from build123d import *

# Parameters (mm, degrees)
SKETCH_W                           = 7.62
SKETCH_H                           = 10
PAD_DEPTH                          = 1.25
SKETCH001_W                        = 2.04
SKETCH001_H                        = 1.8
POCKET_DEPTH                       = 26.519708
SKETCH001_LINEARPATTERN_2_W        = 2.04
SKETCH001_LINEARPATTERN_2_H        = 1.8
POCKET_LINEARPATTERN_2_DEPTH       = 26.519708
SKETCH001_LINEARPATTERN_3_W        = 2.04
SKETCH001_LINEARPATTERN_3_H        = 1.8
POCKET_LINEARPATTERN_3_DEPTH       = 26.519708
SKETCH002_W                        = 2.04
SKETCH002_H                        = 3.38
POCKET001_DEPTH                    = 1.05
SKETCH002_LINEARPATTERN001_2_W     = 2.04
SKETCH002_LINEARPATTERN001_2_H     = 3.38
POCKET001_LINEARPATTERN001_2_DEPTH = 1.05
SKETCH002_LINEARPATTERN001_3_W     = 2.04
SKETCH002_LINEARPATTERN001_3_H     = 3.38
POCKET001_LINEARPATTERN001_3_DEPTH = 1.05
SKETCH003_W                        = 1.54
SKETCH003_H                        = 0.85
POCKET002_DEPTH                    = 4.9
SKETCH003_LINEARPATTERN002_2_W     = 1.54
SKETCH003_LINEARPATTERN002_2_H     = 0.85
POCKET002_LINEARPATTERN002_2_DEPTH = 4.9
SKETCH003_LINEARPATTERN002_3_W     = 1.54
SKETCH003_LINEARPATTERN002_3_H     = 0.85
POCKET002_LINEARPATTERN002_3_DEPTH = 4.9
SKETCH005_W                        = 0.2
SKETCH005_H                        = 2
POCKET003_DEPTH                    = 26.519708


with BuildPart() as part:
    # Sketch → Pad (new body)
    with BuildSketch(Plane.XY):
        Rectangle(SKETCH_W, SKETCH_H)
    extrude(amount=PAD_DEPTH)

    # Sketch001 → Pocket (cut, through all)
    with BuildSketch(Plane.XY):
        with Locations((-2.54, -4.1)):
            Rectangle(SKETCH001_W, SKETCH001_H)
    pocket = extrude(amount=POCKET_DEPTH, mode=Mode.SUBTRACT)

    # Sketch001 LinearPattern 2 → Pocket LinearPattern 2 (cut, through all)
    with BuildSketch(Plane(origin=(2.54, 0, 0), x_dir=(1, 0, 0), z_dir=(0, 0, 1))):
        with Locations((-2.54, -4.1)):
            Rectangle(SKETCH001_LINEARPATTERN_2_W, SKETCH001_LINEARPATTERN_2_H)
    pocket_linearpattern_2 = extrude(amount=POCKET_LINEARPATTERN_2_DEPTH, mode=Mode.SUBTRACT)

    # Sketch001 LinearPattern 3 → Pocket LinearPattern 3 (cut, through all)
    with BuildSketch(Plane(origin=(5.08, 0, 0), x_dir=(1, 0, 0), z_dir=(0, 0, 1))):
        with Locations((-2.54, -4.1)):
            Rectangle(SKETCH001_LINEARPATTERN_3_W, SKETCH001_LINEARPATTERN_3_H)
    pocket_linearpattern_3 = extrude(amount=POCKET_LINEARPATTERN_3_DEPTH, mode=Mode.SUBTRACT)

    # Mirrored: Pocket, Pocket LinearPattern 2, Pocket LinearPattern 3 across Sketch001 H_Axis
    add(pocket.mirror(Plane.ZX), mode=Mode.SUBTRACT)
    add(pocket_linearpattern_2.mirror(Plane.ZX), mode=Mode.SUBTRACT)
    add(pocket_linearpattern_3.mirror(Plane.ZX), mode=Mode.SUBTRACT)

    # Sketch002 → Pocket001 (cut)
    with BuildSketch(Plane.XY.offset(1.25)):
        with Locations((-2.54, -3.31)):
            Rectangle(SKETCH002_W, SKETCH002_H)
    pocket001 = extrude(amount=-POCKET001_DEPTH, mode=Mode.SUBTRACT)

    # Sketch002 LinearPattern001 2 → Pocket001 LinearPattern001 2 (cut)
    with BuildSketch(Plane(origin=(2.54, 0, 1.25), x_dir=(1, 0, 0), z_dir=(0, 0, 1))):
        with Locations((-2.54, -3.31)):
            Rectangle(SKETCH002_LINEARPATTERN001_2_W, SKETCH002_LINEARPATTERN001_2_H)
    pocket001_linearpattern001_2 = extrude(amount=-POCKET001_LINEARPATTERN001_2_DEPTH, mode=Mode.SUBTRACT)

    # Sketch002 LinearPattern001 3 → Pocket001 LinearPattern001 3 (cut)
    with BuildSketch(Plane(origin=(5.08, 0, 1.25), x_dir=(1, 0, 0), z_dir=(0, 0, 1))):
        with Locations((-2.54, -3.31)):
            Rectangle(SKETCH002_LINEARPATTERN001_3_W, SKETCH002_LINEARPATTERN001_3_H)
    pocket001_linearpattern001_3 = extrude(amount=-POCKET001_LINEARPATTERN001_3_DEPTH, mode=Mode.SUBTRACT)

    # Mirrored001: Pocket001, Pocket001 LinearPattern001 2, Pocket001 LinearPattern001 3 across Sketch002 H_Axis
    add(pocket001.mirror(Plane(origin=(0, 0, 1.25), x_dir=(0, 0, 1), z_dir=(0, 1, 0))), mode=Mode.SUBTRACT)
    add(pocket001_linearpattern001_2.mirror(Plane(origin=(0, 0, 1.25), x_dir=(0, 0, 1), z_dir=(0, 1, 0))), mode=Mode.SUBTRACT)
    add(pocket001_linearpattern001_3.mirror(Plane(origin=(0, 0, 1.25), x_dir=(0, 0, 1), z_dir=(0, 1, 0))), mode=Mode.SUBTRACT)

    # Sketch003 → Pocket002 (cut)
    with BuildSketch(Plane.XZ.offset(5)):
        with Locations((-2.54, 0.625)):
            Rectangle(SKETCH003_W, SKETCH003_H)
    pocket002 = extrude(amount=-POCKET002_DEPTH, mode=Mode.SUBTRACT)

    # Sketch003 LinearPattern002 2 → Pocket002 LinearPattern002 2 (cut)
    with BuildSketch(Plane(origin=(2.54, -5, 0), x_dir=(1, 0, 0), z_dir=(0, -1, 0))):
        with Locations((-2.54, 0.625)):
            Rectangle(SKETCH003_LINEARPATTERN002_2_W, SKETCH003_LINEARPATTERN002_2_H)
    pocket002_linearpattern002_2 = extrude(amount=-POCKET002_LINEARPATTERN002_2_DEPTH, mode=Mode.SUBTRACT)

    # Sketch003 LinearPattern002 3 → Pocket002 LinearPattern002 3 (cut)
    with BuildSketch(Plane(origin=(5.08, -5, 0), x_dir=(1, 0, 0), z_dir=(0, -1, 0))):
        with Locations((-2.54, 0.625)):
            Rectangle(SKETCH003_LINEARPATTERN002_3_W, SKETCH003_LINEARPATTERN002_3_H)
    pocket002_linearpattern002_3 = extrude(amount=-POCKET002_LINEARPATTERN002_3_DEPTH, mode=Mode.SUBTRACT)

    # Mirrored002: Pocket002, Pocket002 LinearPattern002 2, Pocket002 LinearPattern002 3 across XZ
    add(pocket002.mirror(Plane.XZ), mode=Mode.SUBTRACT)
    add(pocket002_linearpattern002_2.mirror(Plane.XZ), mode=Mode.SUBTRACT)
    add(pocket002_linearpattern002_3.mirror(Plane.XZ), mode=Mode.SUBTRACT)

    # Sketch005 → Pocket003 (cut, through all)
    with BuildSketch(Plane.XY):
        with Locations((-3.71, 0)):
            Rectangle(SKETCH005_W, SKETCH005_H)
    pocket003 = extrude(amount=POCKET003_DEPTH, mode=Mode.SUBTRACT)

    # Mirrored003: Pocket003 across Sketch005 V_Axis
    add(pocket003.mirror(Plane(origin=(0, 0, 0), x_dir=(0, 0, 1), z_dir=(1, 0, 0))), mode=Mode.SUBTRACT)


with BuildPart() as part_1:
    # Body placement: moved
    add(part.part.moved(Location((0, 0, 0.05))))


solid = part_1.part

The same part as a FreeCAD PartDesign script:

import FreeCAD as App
import Part
import Sketcher

V = App.Vector
Q = App.Units.Quantity


def add_polygon(sketch, points):
    """Adds a closed chain of lines whose ends are joined by coincident constraints."""
    first, n = sketch.GeometryCount, len(points)
    for a, b in zip(points, points[1:] + points[:1]):
        sketch.addGeometry(Part.LineSegment(App.Vector(*a, 0), App.Vector(*b, 0)), False)
    for i in range(n):
        sketch.addConstraint(Sketcher.Constraint("Coincident", first + i, 2, first + (i + 1) % n, 1))

doc = App.newDocument("Part")
body = doc.addObject("PartDesign::Body", "Body")

sketch1 = body.newObject("Sketcher::SketchObject", "Sketch")
sketch1.AttachmentSupport = (doc.getObject("XY_Plane"), [""])
sketch1.MapMode = "FlatFace"
add_polygon(sketch1, [(-3.81, 5), (-3.81, -5), (3.81, -5), (3.81, 5)])
sketch1.addConstraint([
    Sketcher.Constraint("Vertical", 0),
    Sketcher.Constraint("Horizontal", 1),
    Sketcher.Constraint("Vertical", 2),
    Sketcher.Constraint("Horizontal", 3),
    Sketcher.Constraint("Symmetric", 0, 2, 2, 2, -1, 1),
    Sketcher.Constraint("DistanceY", 0, 2, 0, 1, Q("10 mm")),
    Sketcher.Constraint("DistanceX", 1, 1, 1, 2, Q("7.62 mm")),
])
pad1 = body.newObject("PartDesign::Pad", "Pad")
pad1.Profile = sketch1
pad1.Length = 1.25

sketch2 = body.newObject("Sketcher::SketchObject", "Sketch001")
sketch2.AttachmentSupport = (doc.getObject("XY_Plane"), [""])
sketch2.MapMode = "FlatFace"
add_polygon(sketch2, [(-3.56, -3.2), (-3.56, -5), (-1.52, -5), (-1.52, -3.2)])
sketch2.addConstraint([
    Sketcher.Constraint("Vertical", 0),
    Sketcher.Constraint("Horizontal", 1),
    Sketcher.Constraint("Vertical", 2),
    Sketcher.Constraint("Horizontal", 3),
    Sketcher.Constraint("DistanceY", 0, 2, 0, 1, Q("1.8 mm")),
    Sketcher.Constraint("DistanceY", 0, 2, -1, 1, Q("5 mm")),
    Sketcher.Constraint("DistanceX", 1, 1, 1, 2, Q("2.04 mm")),
    Sketcher.Constraint("DistanceX", 0, 2, -1, 1, Q("3.56 mm")),
])
pocket1 = body.newObject("PartDesign::Pocket", "Pocket")
pocket1.Profile = sketch2
pocket1.Type = "ThroughAll"
pocket1.Reversed = True

sketch3 = body.newObject("Sketcher::SketchObject", "Sketch002")
sketch3.AttachmentSupport = (doc.getObject("XY_Plane"), [""])
sketch3.MapMode = "FlatFace"
add_polygon(sketch3, [(-1.02, -3.2), (-1.02, -5), (1.02, -5), (1.02, -3.2)])
sketch3.addConstraint([
    Sketcher.Constraint("Vertical", 0),
    Sketcher.Constraint("Horizontal", 1),
    Sketcher.Constraint("Vertical", 2),
    Sketcher.Constraint("Horizontal", 3),
    Sketcher.Constraint("DistanceY", 0, 2, 0, 1, Q("1.8 mm")),
    Sketcher.Constraint("DistanceY", 0, 2, -1, 1, Q("5 mm")),
    Sketcher.Constraint("DistanceX", 1, 1, 1, 2, Q("2.04 mm")),
    Sketcher.Constraint("DistanceX", 0, 2, -1, 1, Q("1.02 mm")),
])
pocket2 = body.newObject("PartDesign::Pocket", "Pocket001")
pocket2.Profile = sketch3
pocket2.Type = "ThroughAll"
pocket2.Reversed = True

sketch4 = body.newObject("Sketcher::SketchObject", "Sketch003")
sketch4.AttachmentSupport = (doc.getObject("XY_Plane"), [""])
sketch4.MapMode = "FlatFace"
add_polygon(sketch4, [(1.52, -3.2), (1.52, -5), (3.56, -5), (3.56, -3.2)])
sketch4.addConstraint([
    Sketcher.Constraint("Vertical", 0),
    Sketcher.Constraint("Horizontal", 1),
    Sketcher.Constraint("Vertical", 2),
    Sketcher.Constraint("Horizontal", 3),
    Sketcher.Constraint("DistanceY", 0, 2, 0, 1, Q("1.8 mm")),
    Sketcher.Constraint("DistanceY", 0, 2, -1, 1, Q("5 mm")),
    Sketcher.Constraint("DistanceX", 1, 1, 1, 2, Q("2.04 mm")),
    Sketcher.Constraint("DistanceX", -1, 1, 0, 2, Q("1.52 mm")),
])
pocket3 = body.newObject("PartDesign::Pocket", "Pocket002")
pocket3.Profile = sketch4
pocket3.Type = "ThroughAll"
pocket3.Reversed = True
doc.recompute()

mirrored = body.newObject("PartDesign::Mirrored", "Mirrored")
mirrored.Originals = [pocket1, pocket2, pocket3]
mirrored.MirrorPlane = (doc.getObject("XZ_Plane"), [""])
body.Tip = mirrored

sketch5 = body.newObject("Sketcher::SketchObject", "Sketch004")
sketch5.AttachmentSupport = (doc.getObject("XY_Plane"), [""])
sketch5.MapMode = "FlatFace"
sketch5.AttachmentOffset = App.Placement(V(0, 0, 1.25), App.Rotation())
add_polygon(sketch5, [(-3.56, -1.62), (-3.56, -5), (-1.52, -5), (-1.52, -1.62)])
sketch5.addConstraint([
    Sketcher.Constraint("Vertical", 0),
    Sketcher.Constraint("Horizontal", 1),
    Sketcher.Constraint("Vertical", 2),
    Sketcher.Constraint("Horizontal", 3),
    Sketcher.Constraint("DistanceY", 0, 2, -1, 1, Q("5 mm")),
    Sketcher.Constraint("DistanceX", 1, 1, 1, 2, Q("2.04 mm")),
    Sketcher.Constraint("DistanceY", 0, 2, 0, 1, Q("3.38 mm")),
    Sketcher.Constraint("DistanceX", 0, 2, -1, 1, Q("3.56 mm")),
])
pocket4 = body.newObject("PartDesign::Pocket", "Pocket003")
pocket4.Profile = sketch5
pocket4.Length = 1.05

sketch6 = body.newObject("Sketcher::SketchObject", "Sketch005")
sketch6.AttachmentSupport = (doc.getObject("XY_Plane"), [""])
sketch6.MapMode = "FlatFace"
sketch6.AttachmentOffset = App.Placement(V(0, 0, 1.25), App.Rotation())
add_polygon(sketch6, [(-1.02, -1.62), (-1.02, -5), (1.02, -5), (1.02, -1.62)])
sketch6.addConstraint([
    Sketcher.Constraint("Vertical", 0),
    Sketcher.Constraint("Horizontal", 1),
    Sketcher.Constraint("Vertical", 2),
    Sketcher.Constraint("Horizontal", 3),
    Sketcher.Constraint("DistanceY", 0, 2, -1, 1, Q("5 mm")),
    Sketcher.Constraint("DistanceX", 1, 1, 1, 2, Q("2.04 mm")),
    Sketcher.Constraint("DistanceY", 0, 2, 0, 1, Q("3.38 mm")),
    Sketcher.Constraint("DistanceX", 0, 2, -1, 1, Q("1.02 mm")),
])
pocket5 = body.newObject("PartDesign::Pocket", "Pocket004")
pocket5.Profile = sketch6
pocket5.Length = 1.05

sketch7 = body.newObject("Sketcher::SketchObject", "Sketch006")
sketch7.AttachmentSupport = (doc.getObject("XY_Plane"), [""])
sketch7.MapMode = "FlatFace"
sketch7.AttachmentOffset = App.Placement(V(0, 0, 1.25), App.Rotation())
add_polygon(sketch7, [(1.52, -1.62), (1.52, -5), (3.56, -5), (3.56, -1.62)])
sketch7.addConstraint([
    Sketcher.Constraint("Vertical", 0),
    Sketcher.Constraint("Horizontal", 1),
    Sketcher.Constraint("Vertical", 2),
    Sketcher.Constraint("Horizontal", 3),
    Sketcher.Constraint("DistanceY", 0, 2, -1, 1, Q("5 mm")),
    Sketcher.Constraint("DistanceX", 1, 1, 1, 2, Q("2.04 mm")),
    Sketcher.Constraint("DistanceY", 0, 2, 0, 1, Q("3.38 mm")),
    Sketcher.Constraint("DistanceX", -1, 1, 0, 2, Q("1.52 mm")),
])
pocket6 = body.newObject("PartDesign::Pocket", "Pocket005")
pocket6.Profile = sketch7
pocket6.Length = 1.05
doc.recompute()

mirrored2 = body.newObject("PartDesign::Mirrored", "Mirrored001")
mirrored2.Originals = [pocket4, pocket5, pocket6]
mirrored2.MirrorPlane = (doc.getObject("XZ_Plane"), [""])
body.Tip = mirrored2

sketch8 = body.newObject("Sketcher::SketchObject", "Sketch007")
sketch8.AttachmentSupport = (doc.getObject("XZ_Plane"), [""])
sketch8.MapMode = "FlatFace"
sketch8.AttachmentOffset = App.Placement(V(0, 0, 5), App.Rotation())
add_polygon(sketch8, [(-3.31, 1.05), (-3.31, 0.2), (-1.77, 0.2), (-1.77, 1.05)])
sketch8.addConstraint([
    Sketcher.Constraint("Vertical", 0),
    Sketcher.Constraint("Horizontal", 1),
    Sketcher.Constraint("Vertical", 2),
    Sketcher.Constraint("Horizontal", 3),
    Sketcher.Constraint("DistanceX", 1, 1, 1, 2, Q("1.54 mm")),
    Sketcher.Constraint("DistanceY", 0, 2, 0, 1, Q("0.85 mm")),
    Sketcher.Constraint("DistanceY", -1, 1, 0, 2, Q("0.2 mm")),
    Sketcher.Constraint("DistanceX", 0, 2, -1, 1, Q("3.31 mm")),
])
pocket7 = body.newObject("PartDesign::Pocket", "Pocket006")
pocket7.Profile = sketch8
pocket7.Length = 4.9

sketch9 = body.newObject("Sketcher::SketchObject", "Sketch008")
sketch9.AttachmentSupport = (doc.getObject("XZ_Plane"), [""])
sketch9.MapMode = "FlatFace"
sketch9.AttachmentOffset = App.Placement(V(0, 0, 5), App.Rotation())
add_polygon(sketch9, [(-0.77, 1.05), (-0.77, 0.2), (0.77, 0.2), (0.77, 1.05)])
sketch9.addConstraint([
    Sketcher.Constraint("Vertical", 0),
    Sketcher.Constraint("Horizontal", 1),
    Sketcher.Constraint("Vertical", 2),
    Sketcher.Constraint("Horizontal", 3),
    Sketcher.Constraint("DistanceX", 1, 1, 1, 2, Q("1.54 mm")),
    Sketcher.Constraint("DistanceY", 0, 2, 0, 1, Q("0.85 mm")),
    Sketcher.Constraint("DistanceY", -1, 1, 0, 2, Q("0.2 mm")),
    Sketcher.Constraint("DistanceX", 0, 2, -1, 1, Q("0.77 mm")),
])
pocket8 = body.newObject("PartDesign::Pocket", "Pocket007")
pocket8.Profile = sketch9
pocket8.Length = 4.9

sketch10 = body.newObject("Sketcher::SketchObject", "Sketch009")
sketch10.AttachmentSupport = (doc.getObject("XZ_Plane"), [""])
sketch10.MapMode = "FlatFace"
sketch10.AttachmentOffset = App.Placement(V(0, 0, 5), App.Rotation())
add_polygon(sketch10, [(1.77, 1.05), (1.77, 0.2), (3.31, 0.2), (3.31, 1.05)])
sketch10.addConstraint([
    Sketcher.Constraint("Vertical", 0),
    Sketcher.Constraint("Horizontal", 1),
    Sketcher.Constraint("Vertical", 2),
    Sketcher.Constraint("Horizontal", 3),
    Sketcher.Constraint("DistanceX", 1, 1, 1, 2, Q("1.54 mm")),
    Sketcher.Constraint("DistanceY", 0, 2, 0, 1, Q("0.85 mm")),
    Sketcher.Constraint("DistanceY", -1, 1, 0, 2, Q("0.2 mm")),
    Sketcher.Constraint("DistanceX", -1, 1, 0, 2, Q("1.77 mm")),
])
pocket9 = body.newObject("PartDesign::Pocket", "Pocket008")
pocket9.Profile = sketch10
pocket9.Length = 4.9
doc.recompute()

mirrored3 = body.newObject("PartDesign::Mirrored", "Mirrored002")
mirrored3.Originals = [pocket7, pocket8, pocket9]
mirrored3.MirrorPlane = (doc.getObject("XZ_Plane"), [""])
body.Tip = mirrored3

sketch11 = body.newObject("Sketcher::SketchObject", "Sketch010")
sketch11.AttachmentSupport = (doc.getObject("XY_Plane"), [""])
sketch11.MapMode = "FlatFace"
add_polygon(sketch11, [(-3.81, 1), (-3.81, -1), (-3.61, -1), (-3.61, 1)])
sketch11.addConstraint([
    Sketcher.Constraint("Vertical", 0),
    Sketcher.Constraint("Horizontal", 1),
    Sketcher.Constraint("Vertical", 2),
    Sketcher.Constraint("Horizontal", 3),
    Sketcher.Constraint("DistanceY", 0, 2, 0, 1, Q("2 mm")),
    Sketcher.Constraint("DistanceX", 1, 1, 1, 2, Q("0.2 mm")),
    Sketcher.Constraint("DistanceY", 0, 2, -1, 1, Q("1 mm")),
    Sketcher.Constraint("DistanceX", 0, 2, -1, 1, Q("3.81 mm")),
])
pocket10 = body.newObject("PartDesign::Pocket", "Pocket009")
pocket10.Profile = sketch11
pocket10.Type = "ThroughAll"
pocket10.Reversed = True
doc.recompute()

mirrored4 = body.newObject("PartDesign::Mirrored", "Mirrored003")
mirrored4.Originals = [pocket10]
mirrored4.MirrorPlane = (doc.getObject("YZ_Plane"), [""])
body.Tip = mirrored4
body2 = doc.addObject("PartDesign::Body", "Body001")
doc.recompute()

body.Placement = App.Placement(V(0, 0, 0.05), App.Rotation(V(0, 0, 1), 0))
boolean = body2.newObject("PartDesign::Boolean", "Boolean")
boolean.Type = "Fuse"
boolean.addObjects([body])

doc.recompute()
